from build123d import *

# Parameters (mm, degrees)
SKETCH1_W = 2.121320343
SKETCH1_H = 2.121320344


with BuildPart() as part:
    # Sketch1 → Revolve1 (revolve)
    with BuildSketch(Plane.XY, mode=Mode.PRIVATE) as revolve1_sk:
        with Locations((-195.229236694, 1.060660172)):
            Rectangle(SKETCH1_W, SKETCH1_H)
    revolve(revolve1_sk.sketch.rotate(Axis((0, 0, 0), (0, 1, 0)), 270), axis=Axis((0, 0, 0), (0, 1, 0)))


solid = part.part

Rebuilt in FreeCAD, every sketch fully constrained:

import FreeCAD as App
import Part
import Sketcher
Q = App.Units.Quantity


def add_polygon(sketch, points):
    """Adds a closed chain of lines whose ends are joined by coincident constraints."""
    first, n = sketch.GeometryCount, len(points)
    for a, b in zip(points, points[1:] + points[:1]):
        sketch.addGeometry(Part.LineSegment(App.Vector(*a, 0), App.Vector(*b, 0)), False)
    for i in range(n):
        sketch.addConstraint(Sketcher.Constraint("Coincident", first + i, 2, first + (i + 1) % n, 1))

doc = App.newDocument("Part")
body = doc.addObject("PartDesign::Body", "Body")

# Sketch on XY plane
sketch1 = body.newObject("Sketcher::SketchObject", "Sketch")
sketch1.AttachmentSupport = (doc.getObject("XY_Plane"), [""])
sketch1.MapMode = "FlatFace"
add_polygon(sketch1, [(-196.289897, 2.12132), (-196.289897, 0), (-194.168577, 0), (-194.168577, 2.12132)])  # lines 0-3
sketch1.addConstraint([
    Sketcher.Constraint("Vertical", 0),
    Sketcher.Constraint("Horizontal", 1),
    Sketcher.Constraint("Vertical", 2),
    Sketcher.Constraint("Horizontal", 3),
    Sketcher.Constraint("PointOnObject", 0, 2, -1),
    Sketcher.Constraint("Equal", 3, 0),
    Sketcher.Constraint("DistanceX", 1, 1, 1, 2, Q("2.12132 mm")),
    Sketcher.Constraint("DistanceX", 0, 2, -1, 1, Q("196.289897 mm")),
])
revolution = body.newObject("PartDesign::Revolution", "Revolution")
revolution.Profile = sketch1
revolution.ReferenceAxis = (sketch1, ["V_Axis"])
revolution.Angle = 360

doc.recompute()
